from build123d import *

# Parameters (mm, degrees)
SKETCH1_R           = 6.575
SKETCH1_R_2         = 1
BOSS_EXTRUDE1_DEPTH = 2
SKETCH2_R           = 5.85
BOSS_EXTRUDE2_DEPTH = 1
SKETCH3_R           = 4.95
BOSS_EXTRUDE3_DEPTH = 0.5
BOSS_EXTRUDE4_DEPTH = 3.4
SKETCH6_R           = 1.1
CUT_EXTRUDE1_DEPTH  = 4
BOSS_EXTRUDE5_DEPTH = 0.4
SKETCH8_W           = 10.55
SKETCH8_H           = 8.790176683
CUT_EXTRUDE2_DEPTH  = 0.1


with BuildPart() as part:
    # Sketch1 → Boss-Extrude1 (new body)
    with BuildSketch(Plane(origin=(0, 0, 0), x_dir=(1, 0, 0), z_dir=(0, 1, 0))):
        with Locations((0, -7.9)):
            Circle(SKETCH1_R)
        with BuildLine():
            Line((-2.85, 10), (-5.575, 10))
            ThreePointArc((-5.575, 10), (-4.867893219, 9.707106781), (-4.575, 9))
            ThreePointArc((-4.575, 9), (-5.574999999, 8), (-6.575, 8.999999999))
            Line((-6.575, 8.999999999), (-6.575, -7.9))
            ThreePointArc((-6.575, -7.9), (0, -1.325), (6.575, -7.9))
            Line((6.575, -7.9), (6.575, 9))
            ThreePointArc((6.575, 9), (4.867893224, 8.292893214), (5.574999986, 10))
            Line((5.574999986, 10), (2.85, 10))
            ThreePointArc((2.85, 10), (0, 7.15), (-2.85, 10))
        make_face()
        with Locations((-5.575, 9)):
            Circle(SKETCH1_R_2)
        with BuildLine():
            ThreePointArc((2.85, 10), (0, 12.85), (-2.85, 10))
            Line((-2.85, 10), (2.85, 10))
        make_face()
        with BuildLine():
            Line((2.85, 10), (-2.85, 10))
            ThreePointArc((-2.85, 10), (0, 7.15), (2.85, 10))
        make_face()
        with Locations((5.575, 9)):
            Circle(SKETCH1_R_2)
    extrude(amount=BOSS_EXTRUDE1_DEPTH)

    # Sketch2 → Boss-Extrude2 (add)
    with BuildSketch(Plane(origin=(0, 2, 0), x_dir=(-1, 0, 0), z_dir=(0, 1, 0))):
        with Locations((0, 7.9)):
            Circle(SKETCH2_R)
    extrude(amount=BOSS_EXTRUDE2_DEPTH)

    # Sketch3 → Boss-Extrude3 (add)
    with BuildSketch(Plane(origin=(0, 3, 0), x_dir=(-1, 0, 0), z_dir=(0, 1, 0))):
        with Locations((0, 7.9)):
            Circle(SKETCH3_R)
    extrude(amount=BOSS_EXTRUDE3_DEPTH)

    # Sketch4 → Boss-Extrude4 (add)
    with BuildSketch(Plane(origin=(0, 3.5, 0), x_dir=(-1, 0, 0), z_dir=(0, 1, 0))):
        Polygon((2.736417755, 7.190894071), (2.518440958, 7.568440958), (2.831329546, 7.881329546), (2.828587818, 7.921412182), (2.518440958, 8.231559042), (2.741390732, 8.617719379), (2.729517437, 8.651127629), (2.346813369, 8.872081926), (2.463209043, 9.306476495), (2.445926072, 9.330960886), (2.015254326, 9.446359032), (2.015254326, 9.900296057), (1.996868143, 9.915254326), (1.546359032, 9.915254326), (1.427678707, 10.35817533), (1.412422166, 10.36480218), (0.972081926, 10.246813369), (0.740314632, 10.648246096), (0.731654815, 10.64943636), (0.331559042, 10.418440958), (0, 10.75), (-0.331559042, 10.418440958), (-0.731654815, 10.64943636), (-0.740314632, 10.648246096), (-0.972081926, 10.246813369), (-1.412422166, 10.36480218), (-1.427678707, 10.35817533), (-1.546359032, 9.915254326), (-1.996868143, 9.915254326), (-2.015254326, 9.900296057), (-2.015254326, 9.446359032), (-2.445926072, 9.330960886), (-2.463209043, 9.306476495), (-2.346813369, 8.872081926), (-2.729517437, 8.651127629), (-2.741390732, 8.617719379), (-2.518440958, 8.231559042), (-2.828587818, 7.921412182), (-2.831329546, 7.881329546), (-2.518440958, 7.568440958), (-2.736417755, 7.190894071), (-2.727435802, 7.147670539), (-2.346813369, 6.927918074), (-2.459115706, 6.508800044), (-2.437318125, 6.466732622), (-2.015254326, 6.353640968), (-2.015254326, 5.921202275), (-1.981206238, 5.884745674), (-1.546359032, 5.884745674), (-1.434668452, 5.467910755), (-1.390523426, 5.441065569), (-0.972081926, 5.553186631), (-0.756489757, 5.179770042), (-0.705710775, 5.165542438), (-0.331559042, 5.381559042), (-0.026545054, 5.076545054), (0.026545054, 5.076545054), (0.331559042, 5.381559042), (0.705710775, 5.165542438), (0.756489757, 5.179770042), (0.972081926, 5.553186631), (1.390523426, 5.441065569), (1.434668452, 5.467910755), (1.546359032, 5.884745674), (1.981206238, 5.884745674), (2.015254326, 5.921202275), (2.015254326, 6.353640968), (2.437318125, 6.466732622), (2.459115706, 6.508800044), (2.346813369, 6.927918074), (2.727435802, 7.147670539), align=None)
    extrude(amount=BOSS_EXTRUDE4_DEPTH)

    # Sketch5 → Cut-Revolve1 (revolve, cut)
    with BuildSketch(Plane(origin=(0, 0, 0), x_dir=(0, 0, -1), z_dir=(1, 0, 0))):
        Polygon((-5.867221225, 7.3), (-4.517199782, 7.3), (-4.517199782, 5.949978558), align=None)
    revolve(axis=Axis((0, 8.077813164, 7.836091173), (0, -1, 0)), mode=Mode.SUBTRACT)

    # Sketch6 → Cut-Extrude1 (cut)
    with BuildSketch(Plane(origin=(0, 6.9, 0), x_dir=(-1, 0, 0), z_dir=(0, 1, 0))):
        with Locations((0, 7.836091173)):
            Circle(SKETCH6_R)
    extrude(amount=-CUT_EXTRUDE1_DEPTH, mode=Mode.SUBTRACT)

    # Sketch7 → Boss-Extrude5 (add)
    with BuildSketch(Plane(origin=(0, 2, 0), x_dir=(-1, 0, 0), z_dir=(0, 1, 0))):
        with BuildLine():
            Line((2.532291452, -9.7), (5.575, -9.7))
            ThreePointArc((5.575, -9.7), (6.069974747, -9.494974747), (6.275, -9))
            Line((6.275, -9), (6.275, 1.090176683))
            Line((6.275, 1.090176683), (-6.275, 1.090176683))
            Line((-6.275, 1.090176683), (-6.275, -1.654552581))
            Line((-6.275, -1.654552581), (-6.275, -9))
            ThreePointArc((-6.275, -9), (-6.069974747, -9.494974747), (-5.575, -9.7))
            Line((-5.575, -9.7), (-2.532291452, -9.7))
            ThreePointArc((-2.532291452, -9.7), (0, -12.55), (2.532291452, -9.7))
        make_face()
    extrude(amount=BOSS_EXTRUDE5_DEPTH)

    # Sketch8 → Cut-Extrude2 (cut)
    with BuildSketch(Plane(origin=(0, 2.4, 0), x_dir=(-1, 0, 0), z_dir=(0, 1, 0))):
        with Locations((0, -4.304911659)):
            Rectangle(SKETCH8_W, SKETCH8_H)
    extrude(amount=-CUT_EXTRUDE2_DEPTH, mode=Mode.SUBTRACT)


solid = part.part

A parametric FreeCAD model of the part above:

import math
import FreeCAD as App
import Part
import Sketcher
from FreeCAD import Vector
Q = App.Units.Quantity

doc = App.newDocument("Part")
body = doc.addObject("PartDesign::Body", "Body")

# Sketch on XZ plane
sketch1 = doc.addObject("Sketcher::SketchObject", "Sketch")
body.addObject(sketch1)
sketch1.AttachmentSupport = (doc.XZ_Plane, [""])
sketch1.MapMode = "FlatFace"
sketch1.addGeometry([
    Part.ArcOfCircle(Part.Circle(Vector(-5.6, -9, 0), Vector(0, 0, 1), 1), math.radians(180), math.radians(270)),  # 0
    Part.LineSegment(Vector(-6.6, -9, 0), Vector(-6.6, 7.9, 0)),  # 1
    Part.ArcOfCircle(Part.Circle(Vector(0, 7.9, 0), Vector(0, 0, 1), 6.6), math.radians(0), math.radians(180)),  # 2
    Part.LineSegment(Vector(6.6, 7.9, 0), Vector(6.6, -9, 0)),  # 3
    Part.ArcOfCircle(Part.Circle(Vector(5.6, -9, 0), Vector(0, 0, 1), 1), math.radians(-90), math.radians(0)),  # 4
    Part.LineSegment(Vector(5.6, -10, 0), Vector(2.9, -10, 0)),  # 5
    Part.ArcOfCircle(Part.Circle(Vector(0, -10, 0), Vector(0, 0, 1), 2.9), math.radians(180), math.radians(360)),  # 6
    Part.LineSegment(Vector(-2.9, -10, 0), Vector(-5.6, -10, 0)),  # 7
], False)
sketch1.addConstraint([
    Sketcher.Constraint("Tangent", 0, 1, 1, 1),
    Sketcher.Constraint("Tangent", 1, 2, 2, 2),
    Sketcher.Constraint("Tangent", 2, 1, 3, 1),
    Sketcher.Constraint("Tangent", 3, 2, 4, 2),
    Sketcher.Constraint("Tangent", 4, 1, 5, 1),
    Sketcher.Constraint("Coincident", 5, 2, 6, 2),
    Sketcher.Constraint("Coincident", 6, 1, 7, 1),
    Sketcher.Constraint("Tangent", 7, 2, 0, 2),
    Sketcher.Constraint("Vertical", 1),
    Sketcher.Constraint("Vertical", 3),
    Sketcher.Constraint("Horizontal", 5),
    Sketcher.Constraint("Horizontal", 7),
    Sketcher.Constraint("Equal", 0, 4),
    Sketcher.Constraint("Symmetric", 0, 3, 4, 3, -2),
    Sketcher.Constraint("PointOnObject", 6, 3, -2),
    Sketcher.Constraint("Horizontal", 6, 3, 4, 1),
    Sketcher.Constraint("Radius", 0, Q("1 mm")),
    Sketcher.Constraint("Radius", 6, Q("2.85 mm")),
    Sketcher.Constraint("DistanceY", 1, 1, 1, 2, Q("16.9 mm")),
    Sketcher.Constraint("DistanceY", 0, 3, -1, 1, Q("9 mm")),
    Sketcher.Constraint("Radius", 2, Q("6.575 mm")),
])
pad1 = doc.addObject("PartDesign::Pad", "Pad")
body.addObject(pad1)
pad1.Profile = sketch1
pad1.Length = 2
pad1.Reversed = True

# Sketch on XZ plane
sketch2 = doc.addObject("Sketcher::SketchObject", "Sketch001")
body.addObject(sketch2)
sketch2.AttachmentSupport = (doc.XZ_Plane, [""])
sketch2.MapMode = "FlatFace"
sketch2.AttachmentOffset = App.Placement(Vector(0, 0, -2), App.Rotation())
sketch2.addGeometry(Part.Circle(Vector(0, 8, 0), Vector(0, 0, 1), 6), False)
sketch2.addConstraint([
    Sketcher.Constraint("PointOnObject", 0, 3, -2),
    Sketcher.Constraint("Diameter", 0, Q("11.7 mm")),
    Sketcher.Constraint("DistanceY", -1, 1, 0, 3, Q("7.9 mm")),
])
pad2 = doc.addObject("PartDesign::Pad", "Pad001")
body.addObject(pad2)
pad2.Profile = sketch2
pad2.Length = 1
pad2.Reversed = True

# Sketch on XZ plane
sketch3 = doc.addObject("Sketcher::SketchObject", "Sketch002")
body.addObject(sketch3)
sketch3.AttachmentSupport = (doc.XZ_Plane, [""])
sketch3.MapMode = "FlatFace"
sketch3.AttachmentOffset = App.Placement(Vector(0, 0, -3), App.Rotation())
sketch3.addGeometry(Part.Circle(Vector(0, 7.9, 0), Vector(0, 0, 1), 5), False)
sketch3.addConstraint([
    Sketcher.Constraint("PointOnObject", 0, 3, -2),
    Sketcher.Constraint("Diameter", 0, Q("9.9 mm")),
    Sketcher.Constraint("DistanceY", -1, 1, 0, 3, Q("7.9 mm")),
])
pad3 = doc.addObject("PartDesign::Pad", "Pad002")
body.addObject(pad3)
pad3.Profile = sketch3
pad3.Length = 0.5
pad3.Reversed = True

# Sketch on XZ plane
sketch4 = doc.addObject("Sketcher::SketchObject", "Sketch003")
body.addObject(sketch4)
sketch4.AttachmentSupport = (doc.XZ_Plane, [""])
sketch4.MapMode = "FlatFace"
sketch4.AttachmentOffset = App.Placement(Vector(0, 0, -3.5), App.Rotation())
sketch4.addGeometry([
    Part.LineSegment(Vector(-2.736, 7.191, 0), Vector(-2.518, 7.568, 0)),  # 0
    Part.LineSegment(Vector(-2.518, 7.568, 0), Vector(-2.831, 7.881, 0)),  # 1
    Part.LineSegment(Vector(-2.831, 7.881, 0), Vector(-2.829, 7.921, 0)),  # 2
    Part.LineSegment(Vector(-2.829, 7.921, 0), Vector(-2.518, 8.232, 0)),  # 3
    Part.LineSegment(Vector(-2.518, 8.232, 0), Vector(-2.741, 8.618, 0)),  # 4
    Part.LineSegment(Vector(-2.741, 8.618, 0), Vector(-2.73, 8.651, 0)),  # 5
    Part.LineSegment(Vector(-2.73, 8.651, 0), Vector(-2.347, 8.872, 0)),  # 6
    Part.LineSegment(Vector(-2.347, 8.872, 0), Vector(-2.463, 9.306, 0)),  # 7
    Part.LineSegment(Vector(-2.463, 9.306, 0), Vector(-2.446, 9.331, 0)),  # 8
    Part.LineSegment(Vector(-2.446, 9.331, 0), Vector(-2.015, 9.446, 0)),  # 9
    Part.LineSegment(Vector(-2.015, 9.446, 0), Vector(-2.015, 9.9, 0)),  # 10
    Part.LineSegment(Vector(-2.015, 9.9, 0), Vector(-1.997, 9.915, 0)),  # 11
    Part.LineSegment(Vector(-1.997, 9.915, 0), Vector(-1.546, 9.915, 0)),  # 12
    Part.LineSegment(Vector(-1.546, 9.915, 0), Vector(-1.428, 10.358, 0)),  # 13
    Part.LineSegment(Vector(-1.428, 10.358, 0), Vector(-1.412, 10.365, 0)),  # 14
    Part.LineSegment(Vector(-1.412, 10.365, 0), Vector(-0.972, 10.247, 0)),  # 15
    Part.LineSegment(Vector(-0.972, 10.247, 0), Vector(-0.74, 10.648, 0)),  # 16
    Part.LineSegment(Vector(-0.74, 10.648, 0), Vector(-0.732, 10.649, 0)),  # 17
    Part.LineSegment(Vector(-0.732, 10.649, 0), Vector(-0.332, 10.418, 0)),  # 18
    Part.LineSegment(Vector(-0.332, 10.418, 0), Vector(0, 10.75, 0)),  # 19
    Part.LineSegment(Vector(0, 10.75, 0), Vector(0.332, 10.418, 0)),  # 20
    Part.LineSegment(Vector(0.332, 10.418, 0), Vector(0.732, 10.649, 0)),  # 21
    Part.LineSegment(Vector(0.732, 10.649, 0), Vector(0.74, 10.648, 0)),  # 22
    Part.LineSegment(Vector(0.74, 10.648, 0), Vector(0.972, 10.247, 0)),  # 23
    Part.LineSegment(Vector(0.972, 10.247, 0), Vector(1.412, 10.365, 0)),  # 24
    Part.LineSegment(Vector(1.412, 10.365, 0), Vector(1.428, 10.358, 0)),  # 25
    Part.LineSegment(Vector(1.428, 10.358, 0), Vector(1.546, 9.915, 0)),  # 26
    Part.LineSegment(Vector(1.546, 9.915, 0), Vector(1.997, 9.915, 0)),  # 27
    Part.LineSegment(Vector(1.997, 9.915, 0), Vector(2.015, 9.9, 0)),  # 28
    Part.LineSegment(Vector(2.015, 9.9, 0), Vector(2.015, 9.446, 0)),  # 29
    Part.LineSegment(Vector(2.015, 9.446, 0), Vector(2.446, 9.331, 0)),  # 30
    Part.LineSegment(Vector(2.446, 9.331, 0), Vector(2.463, 9.306, 0)),  # 31
    Part.LineSegment(Vector(2.463, 9.306, 0), Vector(2.347, 8.872, 0)),  # 32
    Part.LineSegment(Vector(2.347, 8.872, 0), Vector(2.73, 8.651, 0)),  # 33
    Part.LineSegment(Vector(2.73, 8.651, 0), Vector(2.741, 8.618, 0)),  # 34
    Part.LineSegment(Vector(2.741, 8.618, 0), Vector(2.518, 8.232, 0)),  # 35
    Part.LineSegment(Vector(2.518, 8.232, 0), Vector(2.829, 7.921, 0)),  # 36
    Part.LineSegment(Vector(2.829, 7.921, 0), Vector(2.831, 7.881, 0)),  # 37
    Part.LineSegment(Vector(2.831, 7.881, 0), Vector(2.518, 7.568, 0)),  # 38
    Part.LineSegment(Vector(2.518, 7.568, 0), Vector(2.736, 7.191, 0)),  # 39
    Part.LineSegment(Vector(2.736, 7.191, 0), Vector(2.727, 7.148, 0)),  # 40
    Part.LineSegment(Vector(2.727, 7.148, 0), Vector(2.347, 6.928, 0)),  # 41
    Part.LineSegment(Vector(2.347, 6.928, 0), Vector(2.459, 6.509, 0)),  # 42
    Part.LineSegment(Vector(2.459, 6.509, 0), Vector(2.437, 6.467, 0)),  # 43
    Part.LineSegment(Vector(2.437, 6.467, 0), Vector(2.015, 6.354, 0)),  # 44
    Part.LineSegment(Vector(2.015, 6.354, 0), Vector(2.015, 5.921, 0)),  # 45
    Part.LineSegment(Vector(2.015, 5.921, 0), Vector(1.981, 5.885, 0)),  # 46
    Part.LineSegment(Vector(1.981, 5.885, 0), Vector(1.546, 5.885, 0)),  # 47
    Part.LineSegment(Vector(1.546, 5.885, 0), Vector(1.435, 5.468, 0)),  # 48
    Part.LineSegment(Vector(1.435, 5.468, 0), Vector(1.391, 5.441, 0)),  # 49
    Part.LineSegment(Vector(1.391, 5.441, 0), Vector(0.972, 5.553, 0)),  # 50
    Part.LineSegment(Vector(0.972, 5.553, 0), Vector(0.756, 5.18, 0)),  # 51
    Part.LineSegment(Vector(0.756, 5.18, 0), Vector(0.706, 5.166, 0)),  # 52
    Part.LineSegment(Vector(0.706, 5.166, 0), Vector(0.332, 5.382, 0)),  # 53
    Part.LineSegment(Vector(0.332, 5.382, 0), Vector(0.027, 5.077, 0)),  # 54
    Part.LineSegment(Vector(0.027, 5.077, 0), Vector(-0.027, 5.077, 0)),  # 55
    Part.LineSegment(Vector(-0.027, 5.077, 0), Vector(-0.332, 5.382, 0)),  # 56
    Part.LineSegment(Vector(-0.332, 5.382, 0), Vector(-0.706, 5.166, 0)),  # 57
    Part.LineSegment(Vector(-0.706, 5.166, 0), Vector(-0.756, 5.18, 0)),  # 58
    Part.LineSegment(Vector(-0.756, 5.18, 0), Vector(-0.972, 5.553, 0)),  # 59
    Part.LineSegment(Vector(-0.972, 5.553, 0), Vector(-1.391, 5.441, 0)),  # 60
    Part.LineSegment(Vector(-1.391, 5.441, 0), Vector(-1.435, 5.468, 0)),  # 61
    Part.LineSegment(Vector(-1.435, 5.468, 0), Vector(-1.546, 5.885, 0)),  # 62
    Part.LineSegment(Vector(-1.546, 5.885, 0), Vector(-1.981, 5.885, 0)),  # 63
    Part.LineSegment(Vector(-1.981, 5.885, 0), Vector(-2.015, 5.921, 0)),  # 64
    Part.LineSegment(Vector(-2.015, 5.921, 0), Vector(-2.015, 6.354, 0)),  # 65
    Part.LineSegment(Vector(-2.015, 6.354, 0), Vector(-2.437, 6.467, 0)),  # 66
    Part.LineSegment(Vector(-2.437, 6.467, 0), Vector(-2.459, 6.509, 0)),  # 67
    Part.LineSegment(Vector(-2.459, 6.509, 0), Vector(-2.347, 6.928, 0)),  # 68
    Part.LineSegment(Vector(-2.347, 6.928, 0), Vector(-2.727, 7.148, 0)),  # 69
    Part.LineSegment(Vector(-2.727, 7.148, 0), Vector(-2.736, 7.191, 0)),  # 70
], False)
sketch4.addConstraint([
    Sketcher.Constraint("Coincident", 0, 2, 1, 1),
    Sketcher.Constraint("Coincident", 1, 2, 2, 1),
    Sketcher.Constraint("Coincident", 2, 2, 3, 1),
    Sketcher.Constraint("Coincident", 3, 2, 4, 1),
    Sketcher.Constraint("Coincident", 4, 2, 5, 1),
    Sketcher.Constraint("Coincident", 5, 2, 6, 1),
    Sketcher.Constraint("Coincident", 6, 2, 7, 1),
    Sketcher.Constraint("Coincident", 7, 2, 8, 1),
    Sketcher.Constraint("Coincident", 8, 2, 9, 1),
    Sketcher.Constraint("Coincident", 9, 2, 10, 1),
    Sketcher.Constraint("Coincident", 10, 2, 11, 1),
    Sketcher.Constraint("Coincident", 11, 2, 12, 1),
    Sketcher.Constraint("Coincident", 12, 2, 13, 1),
    Sketcher.Constraint("Coincident", 13, 2, 14, 1),
    Sketcher.Constraint("Coincident", 14, 2, 15, 1),
    Sketcher.Constraint("Coincident", 15, 2, 16, 1),
    Sketcher.Constraint("Coincident", 16, 2, 17, 1),
    Sketcher.Constraint("Coincident", 17, 2, 18, 1),
    Sketcher.Constraint("Coincident", 18, 2, 19, 1),
    Sketcher.Constraint("Coincident", 19, 2, 20, 1),
    Sketcher.Constraint("Coincident", 20, 2, 21, 1),
    Sketcher.Constraint("Coincident", 21, 2, 22, 1),
    Sketcher.Constraint("Coincident", 22, 2, 23, 1),
    Sketcher.Constraint("Coincident", 23, 2, 24, 1),
    Sketcher.Constraint("Coincident", 24, 2, 25, 1),
    Sketcher.Constraint("Coincident", 25, 2, 26, 1),
    Sketcher.Constraint("Coincident", 26, 2, 27, 1),
    Sketcher.Constraint("Coincident", 27, 2, 28, 1),
    Sketcher.Constraint("Coincident", 28, 2, 29, 1),
    Sketcher.Constraint("Coincident", 29, 2, 30, 1),
    Sketcher.Constraint("Coincident", 30, 2, 31, 1),
    Sketcher.Constraint("Coincident", 31, 2, 32, 1),
    Sketcher.Constraint("Coincident", 32, 2, 33, 1),
    Sketcher.Constraint("Coincident", 33, 2, 34, 1),
    Sketcher.Constraint("Coincident", 34, 2, 35, 1),
    Sketcher.Constraint("Coincident", 35, 2, 36, 1),
    Sketcher.Constraint("Coincident", 36, 2, 37, 1),
    Sketcher.Constraint("Coincident", 37, 2, 38, 1),
    Sketcher.Constraint("Coincident", 38, 2, 39, 1),
    Sketcher.Constraint("Coincident", 39, 2, 40, 1),
    Sketcher.Constraint("Coincident", 40, 2, 41, 1),
    Sketcher.Constraint("Coincident", 41, 2, 42, 1),
    Sketcher.Constraint("Coincident", 42, 2, 43, 1),
    Sketcher.Constraint("Coincident", 43, 2, 44, 1),
    Sketcher.Constraint("Coincident", 44, 2, 45, 1),
    Sketcher.Constraint("Coincident", 45, 2, 46, 1),
    Sketcher.Constraint("Coincident", 46, 2, 47, 1),
    Sketcher.Constraint("Coincident", 47, 2, 48, 1),
    Sketcher.Constraint("Coincident", 48, 2, 49, 1),
    Sketcher.Constraint("Coincident", 49, 2, 50, 1),
    Sketcher.Constraint("Coincident", 50, 2, 51, 1),
    Sketcher.Constraint("Coincident", 51, 2, 52, 1),
    Sketcher.Constraint("Coincident", 52, 2, 53, 1),
    Sketcher.Constraint("Coincident", 53, 2, 54, 1),
    Sketcher.Constraint("Coincident", 54, 2, 55, 1),
    Sketcher.Constraint("Coincident", 55, 2, 56, 1),
    Sketcher.Constraint("Coincident", 56, 2, 57, 1),
    Sketcher.Constraint("Coincident", 57, 2, 58, 1),
    Sketcher.Constraint("Coincident", 58, 2, 59, 1),
    Sketcher.Constraint("Coincident", 59, 2, 60, 1),
    Sketcher.Constraint("Coincident", 60, 2, 61, 1),
    Sketcher.Constraint("Coincident", 61, 2, 62, 1),
    Sketcher.Constraint("Coincident", 62, 2, 63, 1),
    Sketcher.Constraint("Coincident", 63, 2, 64, 1),
    Sketcher.Constraint("Coincident", 64, 2, 65, 1),
    Sketcher.Constraint("Coincident", 65, 2, 66, 1),
    Sketcher.Constraint("Coincident", 66, 2, 67, 1),
    Sketcher.Constraint("Coincident", 67, 2, 68, 1),
    Sketcher.Constraint("Coincident", 68, 2, 69, 1),
    Sketcher.Constraint("Coincident", 69, 2, 70, 1),
    Sketcher.Constraint("Coincident", 70, 2, 0, 1),
    Sketcher.Constraint("Vertical", 10),
    Sketcher.Constraint("Horizontal", 12),
    Sketcher.Constraint("Horizontal", 27),
    Sketcher.Constraint("Vertical", 29),
    Sketcher.Constraint("Vertical", 45),
    Sketcher.Constraint("Horizontal", 47),
    Sketcher.Constraint("Horizontal", 55),
    Sketcher.Constraint("Horizontal", 63),
    Sketcher.Constraint("Vertical", 65),
    Sketcher.Constraint("Symmetric", 18, 2, 20, 2, -2),
    Sketcher.Constraint("Symmetric", 17, 2, 21, 2, -2),
    Sketcher.Constraint("Symmetric", 16, 2, 22, 2, -2),
    Sketcher.Constraint("Symmetric", 15, 2, 23, 2, -2),
    Sketcher.Constraint("Symmetric", 14, 2, 24, 2, -2),
    Sketcher.Constraint("Symmetric", 13, 2, 25, 2, -2),
    Sketcher.Constraint("Symmetric", 12, 2, 26, 2, -2),
    Sketcher.Constraint("Symmetric", 10, 2, 28, 2, -2),
    Sketcher.Constraint("Symmetric", 8, 2, 30, 2, -2),
    Sketcher.Constraint("Symmetric", 7, 2, 31, 2, -2),
    Sketcher.Constraint("Symmetric", 6, 2, 32, 2, -2),
    Sketcher.Constraint("Symmetric", 5, 2, 33, 2, -2),
    Sketcher.Constraint("Symmetric", 4, 2, 34, 2, -2),
    Sketcher.Constraint("Symmetric", 3, 2, 35, 2, -2),
    Sketcher.Constraint("Symmetric", 2, 2, 36, 2, -2),
    Sketcher.Constraint("Symmetric", 1, 2, 37, 2, -2),
    Sketcher.Constraint("Symmetric", 0, 2, 38, 2, -2),
    Sketcher.Constraint("Symmetric", 53, 2, 56, 2, -2),
    Sketcher.Constraint("Symmetric", 52, 2, 57, 2, -2),
    Sketcher.Constraint("Symmetric", 51, 2, 58, 2, -2),
    Sketcher.Constraint("Symmetric", 50, 2, 59, 2, -2),
    Sketcher.Constraint("Symmetric", 49, 2, 60, 2, -2),
    Sketcher.Constraint("Symmetric", 48, 2, 61, 2, -2),
    Sketcher.Constraint("Symmetric", 47, 2, 62, 2, -2),
    Sketcher.Constraint("Symmetric", 45, 2, 64, 2, -2),
    Sketcher.Constraint("Symmetric", 43, 2, 66, 2, -2),
    Sketcher.Constraint("Symmetric", 42, 2, 67, 2, -2),
    Sketcher.Constraint("Symmetric", 41, 2, 68, 2, -2),
    Sketcher.Constraint("Symmetric", 40, 2, 69, 2, -2),
    Sketcher.Constraint("Symmetric", 39, 2, 70, 2, -2),
    Sketcher.Constraint("PointOnObject", 19, 2, -2),
    Sketcher.Constraint("Perpendicular", 1, 3),
    Sketcher.Constraint("Perpendicular", 4, 6),
    Sketcher.Constraint("Perpendicular", 7, 9),
    Sketcher.Constraint("Perpendicular", 13, 15),
    Sketcher.Constraint("Parallel", 0, 16),
    Sketcher.Constraint("Perpendicular", 16, 18),
    Sketcher.Constraint("Parallel", 3, 19),
    Sketcher.Constraint("Perpendicular", 19, 20),
    Sketcher.Constraint("Parallel", 6, 21),
    Sketcher.Constraint("Parallel", 9, 24),
    Sketcher.Constraint("Parallel", 15, 30),
    Sketcher.Constraint("Perpendicular", 39, 41),
    Sketcher.Constraint("Parallel", 26, 42),
    Sketcher.Constraint("Perpendicular", 42, 44),
    Sketcher.Constraint("Parallel", 32, 48),
    Sketcher.Constraint("Perpendicular", 48, 50),
    Sketcher.Constraint("Parallel", 35, 51),
    Sketcher.Constraint("Perpendicular", 51, 53),
    Sketcher.Constraint("Parallel", 38, 54),
    Sketcher.Constraint("Perpendicular", 54, 56),
    Sketcher.Constraint("Parallel", 50, 66),
    Sketcher.Constraint("Vertical", 0, 2, 3, 2),
    Sketcher.Constraint("Vertical", 32, 2, 41, 2),
    Sketcher.Constraint("Vertical", 29, 2, 44, 2),
    Sketcher.Constraint("Vertical", 26, 2, 47, 2),
    Sketcher.Constraint("Vertical", 23, 2, 50, 2),
    Sketcher.Constraint("Vertical", 20, 2, 53, 2),
    Sketcher.Constraint("Equal", 12, 27),
    Sketcher.Constraint("Equal", 47, 63),
    Sketcher.Constraint("Angle", 0, Q("60 deg")),
    Sketcher.Constraint("Angle", 7, Q("105 deg")),
    Sketcher.Constraint("DistanceY", -1, 1, 19, 2, Q("10.75 mm")),
    Sketcher.Constraint("Distance", 4, Q("0.4459 mm")),
    Sketcher.Constraint("DistanceX", 12, 1, 12, 2, Q("0.450509 mm")),
    Sketcher.Constraint("DistanceX", 55, 2, 55, 1, Q("0.05309 mm")),
    Sketcher.Constraint("DistanceY", 45, 2, 45, 1, Q("0.432439 mm")),
    Sketcher.Constraint("DistanceY", -1, 1, 42, 2, Q("6.5088 mm")),
    Sketcher.Constraint("Distance", 1, Q("0.442491 mm")),
    Sketcher.Constraint("Distance", 6, Q("0.441909 mm")),
    Sketcher.Constraint("Distance", 7, Q("0.449718 mm")),
    Sketcher.Constraint("Distance", 8, Q("0.02997 mm")),
    Sketcher.Constraint("Distance", 17, Q("0.008741 mm")),
    Sketcher.Constraint("Distance", 18, Q("0.461991 mm")),
    Sketcher.Constraint("Distance", 43, Q("0.047379 mm")),
    Sketcher.Constraint("Distance", 48, Q("0.431539 mm")),
    Sketcher.Constraint("DistanceX", 47, 2, 47, 1, Q("0.434847 mm")),
    Sketcher.Constraint("DistanceY", 10, 1, 10, 2, Q("0.453937 mm")),
    Sketcher.Constraint("DistanceX", 0, 2, -1, 1, Q("2.518441 mm")),
    Sketcher.Constraint("DistanceY", -1, 1, 0, 2, Q("7.568441 mm")),
    Sketcher.Constraint("DistanceY", -1, 1, 3, 2, Q("8.231559 mm")),
    Sketcher.Constraint("DistanceY", -1, 1, 6, 2, Q("8.872082 mm")),
    Sketcher.Constraint("DistanceX", 7, 2, -1, 1, Q("2.463209 mm")),
    Sketcher.Constraint("DistanceY", -1, 1, 8, 2, Q("9.330961 mm")),
    Sketcher.Constraint("DistanceY", -1, 1, 9, 2, Q("9.446359 mm")),
    Sketcher.Constraint("DistanceX", 11, 2, -1, 1, Q("1.996868 mm")),
    Sketcher.Constraint("DistanceX", 13, 2, -1, 1, Q("1.427679 mm")),
    Sketcher.Constraint("DistanceX", 15, 2, -1, 1, Q("0.972082 mm")),
    Sketcher.Constraint("DistanceX", 18, 2, -1, 1, Q("0.331559 mm")),
    Sketcher.Constraint("DistanceY", -1, 1, 40, 2, Q("7.147671 mm")),
    Sketcher.Constraint("DistanceY", -1, 1, 41, 2, Q("6.927918 mm")),
    Sketcher.Constraint("DistanceX", -1, 1, 43, 2, Q("2.437318 mm")),
    Sketcher.Constraint("DistanceY", -1, 1, 48, 2, Q("5.467911 mm")),
    Sketcher.Constraint("DistanceX", -1, 1, 51, 2, Q("0.75649 mm")),
    Sketcher.Constraint("DistanceY", -1, 1, 51, 2, Q("5.17977 mm")),
    Sketcher.Constraint("DistanceX", -1, 1, 52, 2, Q("0.705711 mm")),
    Sketcher.Constraint("DistanceY", -1, 1, 53, 2, Q("5.381559 mm")),
    Sketcher.Constraint("Distance", 0, Q("0.435954 mm")),
    Sketcher.Constraint("Distance", 2, Q("0.040176 mm")),
    Sketcher.Constraint("Distance", 11, Q("0.023702 mm")),
    Sketcher.Constraint("Distance", 14, Q("0.016634 mm")),
    Sketcher.Constraint("Distance", 15, Q("0.455874 mm")),
    Sketcher.Constraint("Distance", 49, Q("0.051667 mm")),
])
pad4 = doc.addObject("PartDesign::Pad", "Pad003")
body.addObject(pad4)
pad4.Profile = sketch4
pad4.Length = 3.4
pad4.Reversed = True

# Sketch on YZ plane
sketch5 = doc.addObject("Sketcher::SketchObject", "Sketch004")
body.addObject(sketch5)
sketch5.AttachmentSupport = (doc.YZ_Plane, [""])
sketch5.MapMode = "FlatFace"
sketch5.addGeometry([
    Part.LineSegment(Vector(7.3, 4.5, 0), Vector(7.3, 5.9, 0)),
    Part.LineSegment(Vector(7.3, 5.9, 0), Vector(5.9, 4.5, 0)),
    Part.LineSegment(Vector(5.9, 4.5, 0), Vector(7.3, 4.5, 0)),
], False)
sketch5.addGeometry(Part.LineSegment(Vector(7.3, 7.8, 0), Vector(5.9, 7.8, 0)), True)  # axis
sketch5.addConstraint([
    Sketcher.Constraint("Coincident", 0, 2, 1, 1),
    Sketcher.Constraint("Coincident", 1, 2, 2, 1),
    Sketcher.Constraint("Coincident", 2, 2, 0, 1),
    Sketcher.Constraint("Vertical", 0),
    Sketcher.Constraint("Horizontal", 2),
    Sketcher.Constraint("Horizontal", 3),
    Sketcher.Constraint("Vertical", 2, 2, 3, 1),
    Sketcher.Constraint("Vertical", 1, 2, 3, 2),
    Sketcher.Constraint("Equal", 3, 0),
    Sketcher.Constraint("DistanceX", -1, 1, 0, 2, Q("7.3 mm")),
    Sketcher.Constraint("DistanceX", 2, 1, 2, 2, Q("1.350021 mm")),
    Sketcher.Constraint("DistanceY", -1, 1, 1, 2, Q("4.5172 mm")),
    Sketcher.Constraint("DistanceY", -1, 1, 3, 1, Q("7.836091 mm")),
])
groove = doc.addObject("PartDesign::Groove", "Groove")
body.addObject(groove)
groove.Profile = sketch5
groove.ReferenceAxis = (sketch5, ["Axis0"])
groove.Angle = 360

# Sketch on XZ plane
sketch6 = doc.addObject("Sketcher::SketchObject", "Sketch005")
body.addObject(sketch6)
sketch6.AttachmentSupport = (doc.XZ_Plane, [""])
sketch6.MapMode = "FlatFace"
sketch6.AttachmentOffset = App.Placement(Vector(0, 0, -6.9), App.Rotation())
sketch6.addGeometry(Part.Circle(Vector(0, 7.8, 0), Vector(0, 0, 1), 1.1), False)
sketch6.addConstraint([
    Sketcher.Constraint("PointOnObject", 0, 3, -2),
    Sketcher.Constraint("Diameter", 0, Q("2.2 mm")),
    Sketcher.Constraint("DistanceY", -1, 1, 0, 3, Q("7.836091 mm")),
])
pocket1 = doc.addObject("PartDesign::Pocket", "Pocket")
body.addObject(pocket1)
pocket1.Profile = sketch6
pocket1.Length = 4
pocket1.Reversed = True

# Sketch on XZ plane
sketch7 = doc.addObject("Sketcher::SketchObject", "Sketch006")
body.addObject(sketch7)
sketch7.AttachmentSupport = (doc.XZ_Plane, [""])
sketch7.MapMode = "FlatFace"
sketch7.AttachmentOffset = App.Placement(Vector(0, 0, -2), App.Rotation())
sketch7.addGeometry([
    Part.LineSegment(Vector(-2.5, -9.7, 0), Vector(-5.6, -9.7, 0)),  # 0
    Part.ArcOfCircle(Part.Circle(Vector(-5.6, -9, 0), Vector(0, 0, 1), 0.7), math.radians(180), math.radians(270)),  # 1
    Part.LineSegment(Vector(-6.3, -9, 0), Vector(-6.3, 1.1, 0)),  # 2
    Part.LineSegment(Vector(-6.3, 1.1, 0), Vector(6.3, 1.1, 0)),  # 3
    Part.LineSegment(Vector(6.3, 1.1, 0), Vector(6.3, -9, 0)),  # 4
    Part.ArcOfCircle(Part.Circle(Vector(5.6, -9, 0), Vector(0, 0, 1), 0.7), math.radians(-90), math.radians(0)),  # 5
    Part.LineSegment(Vector(5.6, -9.7, 0), Vector(2.5, -9.7, 0)),  # 6
    Part.ArcOfCircle(Part.Circle(Vector(0, -10, 0), Vector(0, 0, 1), 2.5), math.radians(173), math.radians(367)),  # 7
], False)
sketch7.addConstraint([
    Sketcher.Constraint("Tangent", 0, 2, 1, 2),
    Sketcher.Constraint("Tangent", 1, 1, 2, 1),
    Sketcher.Constraint("Coincident", 2, 2, 3, 1),
    Sketcher.Constraint("Coincident", 3, 2, 4, 1),
    Sketcher.Constraint("Tangent", 4, 2, 5, 2),
    Sketcher.Constraint("Tangent", 5, 1, 6, 1),
    Sketcher.Constraint("Coincident", 6, 2, 7, 2),
    Sketcher.Constraint("Coincident", 7, 1, 0, 1),
    Sketcher.Constraint("Horizontal", 0),
    Sketcher.Constraint("Vertical", 2),
    Sketcher.Constraint("Horizontal", 3),
    Sketcher.Constraint("Vertical", 4),
    Sketcher.Constraint("Horizontal", 6),
    Sketcher.Constraint("Equal", 1, 5),
    Sketcher.Constraint("Symmetric", 1, 3, 5, 3, -2),
    Sketcher.Constraint("PointOnObject", 7, 3, -2),
    Sketcher.Constraint("Radius", 1, Q("0.7 mm")),
    Sketcher.Constraint("Radius", 7, Q("2.55 mm")),
    Sketcher.Constraint("DistanceY", 1, 3, -1, 1, Q("9 mm")),
    Sketcher.Constraint("DistanceY", 7, 3, -1, 1, Q("10 mm")),
    Sketcher.Constraint("DistanceX", 3, 1, 3, 2, Q("12.55 mm")),
    Sketcher.Constraint("DistanceY", 2, 1, 2, 2, Q("10.090177 mm")),
])
pad5 = doc.addObject("PartDesign::Pad", "Pad004")
body.addObject(pad5)
pad5.Profile = sketch7
pad5.Length = 0.4
pad5.Reversed = True

# Sketch on XZ plane
sketch8 = doc.addObject("Sketcher::SketchObject", "Sketch007")
body.addObject(sketch8)
sketch8.AttachmentSupport = (doc.XZ_Plane, [""])
sketch8.MapMode = "FlatFace"
sketch8.AttachmentOffset = App.Placement(Vector(0, 0, -2.4), App.Rotation())
sketch8.addGeometry([
    Part.LineSegment(Vector(5, 0, 0), Vector(5, -9, 0)),
    Part.LineSegment(Vector(5, -9, 0), Vector(-5, -9, 0)),
    Part.LineSegment(Vector(-5, -9, 0), Vector(-5, 0, 0)),
    Part.LineSegment(Vector(-5, 0, 0), Vector(5, 0, 0)),
], False)
sketch8.addConstraint([
    Sketcher.Constraint("Coincident", 0, 2, 1, 1),
    Sketcher.Constraint("Coincident", 1, 2, 2, 1),
    Sketcher.Constraint("Coincident", 2, 2, 3, 1),
    Sketcher.Constraint("Coincident", 3, 2, 0, 1),
    Sketcher.Constraint("Vertical", 0),
    Sketcher.Constraint("Horizontal", 1),
    Sketcher.Constraint("Vertical", 2),
    Sketcher.Constraint("Horizontal", 3),
    Sketcher.Constraint("DistanceX", 1, 2, 1, 1, Q("10.55 mm")),
    Sketcher.Constraint("DistanceY", 0, 2, -1, 1, Q("8.7 mm")),
    Sketcher.Constraint("DistanceX", -1, 1, 0, 2, Q("5.275 mm")),
    Sketcher.Constraint("DistanceY", 0, 2, 0, 1, Q("8.790177 mm")),
])
pocket2 = doc.addObject("PartDesign::Pocket", "Pocket001")
body.addObject(pocket2)
pocket2.Profile = sketch8
pocket2.Length = 0.1
pocket2.Reversed = True

doc.recompute()
